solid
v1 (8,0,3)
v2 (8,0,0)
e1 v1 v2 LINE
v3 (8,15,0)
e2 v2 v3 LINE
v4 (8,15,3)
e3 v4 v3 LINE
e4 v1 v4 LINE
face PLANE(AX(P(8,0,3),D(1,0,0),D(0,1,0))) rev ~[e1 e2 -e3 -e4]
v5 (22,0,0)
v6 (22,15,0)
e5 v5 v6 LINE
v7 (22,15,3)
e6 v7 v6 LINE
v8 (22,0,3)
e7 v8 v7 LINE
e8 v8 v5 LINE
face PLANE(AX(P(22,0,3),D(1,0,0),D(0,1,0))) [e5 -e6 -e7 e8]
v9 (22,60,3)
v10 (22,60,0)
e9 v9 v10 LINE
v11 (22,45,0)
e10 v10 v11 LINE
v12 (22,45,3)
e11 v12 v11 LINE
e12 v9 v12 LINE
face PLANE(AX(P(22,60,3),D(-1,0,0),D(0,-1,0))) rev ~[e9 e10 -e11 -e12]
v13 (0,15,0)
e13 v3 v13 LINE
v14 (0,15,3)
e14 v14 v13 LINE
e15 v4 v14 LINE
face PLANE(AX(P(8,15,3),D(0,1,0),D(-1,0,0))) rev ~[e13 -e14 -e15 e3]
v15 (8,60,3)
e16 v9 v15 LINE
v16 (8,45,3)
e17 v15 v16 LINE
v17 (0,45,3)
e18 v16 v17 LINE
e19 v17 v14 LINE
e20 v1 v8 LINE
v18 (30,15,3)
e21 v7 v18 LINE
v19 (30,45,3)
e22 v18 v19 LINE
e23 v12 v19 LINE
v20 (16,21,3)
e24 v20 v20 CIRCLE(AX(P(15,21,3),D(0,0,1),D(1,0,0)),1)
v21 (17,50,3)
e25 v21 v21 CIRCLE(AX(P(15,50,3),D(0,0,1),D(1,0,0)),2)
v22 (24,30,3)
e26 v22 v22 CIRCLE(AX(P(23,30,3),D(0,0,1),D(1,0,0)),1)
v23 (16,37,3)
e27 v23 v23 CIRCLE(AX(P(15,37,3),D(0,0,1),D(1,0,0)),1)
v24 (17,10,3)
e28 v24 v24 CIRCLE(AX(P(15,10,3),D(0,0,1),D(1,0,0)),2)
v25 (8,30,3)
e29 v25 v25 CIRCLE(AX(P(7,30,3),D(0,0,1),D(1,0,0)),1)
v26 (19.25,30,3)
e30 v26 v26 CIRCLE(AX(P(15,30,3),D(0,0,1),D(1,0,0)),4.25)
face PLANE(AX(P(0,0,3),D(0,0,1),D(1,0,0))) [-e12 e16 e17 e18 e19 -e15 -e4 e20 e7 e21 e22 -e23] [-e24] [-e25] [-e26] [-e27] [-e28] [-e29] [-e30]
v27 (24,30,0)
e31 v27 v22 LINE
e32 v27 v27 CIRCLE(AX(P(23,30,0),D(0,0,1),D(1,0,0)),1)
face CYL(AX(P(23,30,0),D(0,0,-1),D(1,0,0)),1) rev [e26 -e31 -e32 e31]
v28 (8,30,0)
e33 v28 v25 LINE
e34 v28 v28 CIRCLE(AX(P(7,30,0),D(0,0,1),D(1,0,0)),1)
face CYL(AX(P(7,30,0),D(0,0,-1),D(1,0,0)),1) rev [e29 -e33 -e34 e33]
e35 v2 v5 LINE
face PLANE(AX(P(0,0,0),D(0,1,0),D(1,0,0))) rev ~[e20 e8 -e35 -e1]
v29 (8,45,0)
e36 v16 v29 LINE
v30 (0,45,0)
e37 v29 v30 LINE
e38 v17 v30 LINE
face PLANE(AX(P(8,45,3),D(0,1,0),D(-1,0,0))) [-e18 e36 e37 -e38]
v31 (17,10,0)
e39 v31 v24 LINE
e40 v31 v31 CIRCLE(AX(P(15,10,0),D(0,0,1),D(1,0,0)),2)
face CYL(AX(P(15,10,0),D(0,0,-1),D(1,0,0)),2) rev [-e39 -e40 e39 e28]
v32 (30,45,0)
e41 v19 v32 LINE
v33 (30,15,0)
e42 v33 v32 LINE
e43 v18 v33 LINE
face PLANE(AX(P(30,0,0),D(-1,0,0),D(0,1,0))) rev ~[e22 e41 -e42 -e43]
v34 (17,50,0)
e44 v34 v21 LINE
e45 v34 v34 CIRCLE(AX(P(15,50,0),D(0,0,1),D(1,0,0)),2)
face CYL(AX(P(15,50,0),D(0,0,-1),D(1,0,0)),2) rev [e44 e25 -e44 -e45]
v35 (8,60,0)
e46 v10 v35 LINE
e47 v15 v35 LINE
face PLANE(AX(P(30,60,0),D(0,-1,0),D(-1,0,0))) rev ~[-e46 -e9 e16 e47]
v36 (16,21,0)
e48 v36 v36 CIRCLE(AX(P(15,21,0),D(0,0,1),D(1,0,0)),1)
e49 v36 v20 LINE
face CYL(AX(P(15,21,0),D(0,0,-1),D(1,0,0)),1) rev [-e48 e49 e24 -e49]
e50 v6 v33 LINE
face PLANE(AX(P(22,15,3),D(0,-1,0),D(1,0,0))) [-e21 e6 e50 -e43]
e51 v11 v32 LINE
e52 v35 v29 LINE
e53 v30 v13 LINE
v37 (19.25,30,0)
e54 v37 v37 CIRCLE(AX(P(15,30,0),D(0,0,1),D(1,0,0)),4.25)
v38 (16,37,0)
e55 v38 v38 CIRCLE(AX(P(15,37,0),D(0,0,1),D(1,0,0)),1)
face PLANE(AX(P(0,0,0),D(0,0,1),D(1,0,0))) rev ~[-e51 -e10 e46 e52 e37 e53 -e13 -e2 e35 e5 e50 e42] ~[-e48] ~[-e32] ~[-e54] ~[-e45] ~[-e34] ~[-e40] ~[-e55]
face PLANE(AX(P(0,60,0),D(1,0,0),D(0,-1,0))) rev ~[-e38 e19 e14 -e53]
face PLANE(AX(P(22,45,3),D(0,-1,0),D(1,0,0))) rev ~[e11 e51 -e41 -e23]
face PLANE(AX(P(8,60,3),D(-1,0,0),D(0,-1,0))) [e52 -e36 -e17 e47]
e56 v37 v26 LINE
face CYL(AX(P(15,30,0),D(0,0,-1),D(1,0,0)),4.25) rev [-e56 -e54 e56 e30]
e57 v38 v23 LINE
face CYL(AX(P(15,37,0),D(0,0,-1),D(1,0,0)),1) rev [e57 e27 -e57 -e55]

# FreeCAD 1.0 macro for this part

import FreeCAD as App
import Part
import Sketcher

V = App.Vector
Q = App.Units.Quantity

doc = App.newDocument("Part")
params = doc.addObject("Spreadsheet::Sheet", "Params")
for row, (alias, value) in enumerate([
    ("sketch1_diameter", "4 mm"),
    ("sketch1_diameter2", "2 mm"),
    ("sketch1_diameter3", "8.5 mm"),
    ("sketch1_width", "30 mm"),
    ("sketch1_height", "60 mm"),
    ("pad1_length", "3 mm"),
    ("sketch2_width", "8 mm"),
    ("sketch2_height", "15 mm"),
    ("pocket1_length", "3 mm"),
], start=1):
    params.set(f"A{row}", alias)
    params.set(f"B{row}", "=" + value)
    params.setAlias(f"B{row}", alias)

body = doc.addObject("PartDesign::Body", "Body")

sketch1 = doc.addObject("Sketcher::SketchObject", "Sketch")
body.addObject(sketch1)
sketch1.AttachmentSupport = (doc.XY_Plane, [""])
sketch1.MapMode = "FlatFace"
sketch1.addGeometry([
    Part.LineSegment(V(0, 60, 0), V(0, 0, 0)),
    Part.LineSegment(V(0, 0, 0), V(30, 0, 0)),
    Part.LineSegment(V(30, 0, 0), V(30, 60, 0)),
    Part.LineSegment(V(30, 60, 0), V(0, 60, 0)),
    Part.Circle(V(15, 10, 0), V(0, 0, 1), 2),
    Part.Circle(V(15, 21, 0), V(0, 0, 1), 1),
    Part.Circle(V(7, 30, 0), V(0, 0, 1), 1),
    Part.Circle(V(15, 30, 0), V(0, 0, 1), 4.2),
    Part.Circle(V(15, 37, 0), V(0, 0, 1), 1),
    Part.Circle(V(23, 30, 0), V(0, 0, 1), 1),
    Part.Circle(V(15, 50, 0), V(0, 0, 1), 2),
], False)
sketch1.addConstraint([
    Sketcher.Constraint("Coincident", 0, 2, 1, 1),
    Sketcher.Constraint("Coincident", 1, 2, 2, 1),
    Sketcher.Constraint("Coincident", 2, 2, 3, 1),
    Sketcher.Constraint("Coincident", 3, 2, 0, 1),
    Sketcher.Constraint("Vertical", 0),
    Sketcher.Constraint("Horizontal", 1),
    Sketcher.Constraint("Vertical", 2),
    Sketcher.Constraint("Horizontal", 3),
    Sketcher.Constraint("Coincident", 0, 2, -1, 1),
    Sketcher.Constraint("Equal", 5, 6),
    Sketcher.Constraint("Equal", 6, 8),
    Sketcher.Constraint("Equal", 8, 9),
    Sketcher.Constraint("Equal", 4, 10),
    Sketcher.Constraint("Horizontal", 6, 3, 7, 3),
    Sketcher.Constraint("Horizontal", 7, 3, 9, 3),
    Sketcher.Constraint("Vertical", 4, 3, 5, 3),
    Sketcher.Constraint("Vertical", 5, 3, 7, 3),
    Sketcher.Constraint("Vertical", 7, 3, 8, 3),
    Sketcher.Constraint("Vertical", 8, 3, 10, 3),
    Sketcher.Constraint("Diameter", 4, Q("4 mm")),
    Sketcher.Constraint("Diameter", 5, Q("2 mm")),
    Sketcher.Constraint("Diameter", 7, Q("8.5 mm")),
    Sketcher.Constraint("DistanceX", 1, 1, 1, 2, Q("30 mm")),
    Sketcher.Constraint("DistanceY", 0, 2, 0, 1, Q("60 mm")),
    Sketcher.Constraint("DistanceX", -1, 1, 6, 3, Q("7 mm")),
    Sketcher.Constraint("DistanceY", -1, 1, 6, 3, Q("30 mm")),
    Sketcher.Constraint("DistanceX", -1, 1, 9, 3, Q("23 mm")),
    Sketcher.Constraint("DistanceY", 4, 3, 6, 3, Q("20 mm")),
    Sketcher.Constraint("DistanceY", 7, 3, 8, 3, Q("7 mm")),
    Sketcher.Constraint("DistanceY", 5, 3, 8, 3, Q("16 mm")),
    Sketcher.Constraint("DistanceY", 7, 3, 10, 3, Q("20 mm")),
    Sketcher.Constraint("DistanceX", -1, 1, 4, 3, Q("15 mm")),
])
sketch1.setExpression("Constraints[19]", "Params.sketch1_diameter")
sketch1.setExpression("Constraints[20]", "Params.sketch1_diameter2")
sketch1.setExpression("Constraints[21]", "Params.sketch1_diameter3")
sketch1.setExpression("Constraints[22]", "Params.sketch1_width")
sketch1.setExpression("Constraints[23]", "Params.sketch1_height")
pad1 = doc.addObject("PartDesign::Pad", "Pad")
body.addObject(pad1)
pad1.Profile = sketch1
pad1.setExpression("Length", "Params.pad1_length")

sketch2 = doc.addObject("Sketcher::SketchObject", "Sketch001")
body.addObject(sketch2)
sketch2.AttachmentSupport = (doc.XY_Plane, [""])
sketch2.MapMode = "FlatFace"
sketch2.AttachmentOffset = App.Placement(V(0, 0, 3), App.Rotation())
sketch2.addGeometry([
    Part.LineSegment(V(30, 45, 0), V(30, 60, 0)),
    Part.LineSegment(V(30, 60, 0), V(22, 60, 0)),
    Part.LineSegment(V(22, 60, 0), V(22, 45, 0)),
    Part.LineSegment(V(22, 45, 0), V(30, 45, 0)),
    Part.LineSegment(V(8, 45, 0), V(8, 60, 0)),
    Part.LineSegment(V(8, 60, 0), V(0, 60, 0)),
    Part.LineSegment(V(0, 60, 0), V(0, 45, 0)),
    Part.LineSegment(V(0, 45, 0), V(8, 45, 0)),
    Part.LineSegment(V(0, 15, 0), V(0, 0, 0)),
    Part.LineSegment(V(0, 0, 0), V(8, 0, 0)),
    Part.LineSegment(V(8, 0, 0), V(8, 15, 0)),
    Part.LineSegment(V(8, 15, 0), V(0, 15, 0)),
    Part.LineSegment(V(22, 15, 0), V(22, 0, 0)),
    Part.LineSegment(V(22, 0, 0), V(30, 0, 0)),
    Part.LineSegment(V(30, 0, 0), V(30, 15, 0)),
    Part.LineSegment(V(30, 15, 0), V(22, 15, 0)),
], False)
sketch2.addConstraint([
    Sketcher.Constraint("Coincident", 0, 2, 1, 1),
    Sketcher.Constraint("Coincident", 1, 2, 2, 1),
    Sketcher.Constraint("Coincident", 2, 2, 3, 1),
    Sketcher.Constraint("Coincident", 3, 2, 0, 1),
    Sketcher.Constraint("Coincident", 4, 2, 5, 1),
    Sketcher.Constraint("Coincident", 5, 2, 6, 1),
    Sketcher.Constraint("Coincident", 6, 2, 7, 1),
    Sketcher.Constraint("Coincident", 7, 2, 4, 1),
    Sketcher.Constraint("Coincident", 8, 2, 9, 1),
    Sketcher.Constraint("Coincident", 9, 2, 10, 1),
    Sketcher.Constraint("Coincident", 10, 2, 11, 1),
    Sketcher.Constraint("Coincident", 11, 2, 8, 1),
    Sketcher.Constraint("Coincident", 12, 2, 13, 1),
    Sketcher.Constraint("Coincident", 13, 2, 14, 1),
    Sketcher.Constraint("Coincident", 14, 2, 15, 1),
    Sketcher.Constraint("Coincident", 15, 2, 12, 1),
    Sketcher.Constraint("Vertical", 0),
    Sketcher.Constraint("Horizontal", 1),
    Sketcher.Constraint("Vertical", 2),
    Sketcher.Constraint("Horizontal", 3),
    Sketcher.Constraint("Vertical", 4),
    Sketcher.Constraint("Horizontal", 5),
    Sketcher.Constraint("Vertical", 6),
    Sketcher.Constraint("Horizontal", 7),
    Sketcher.Constraint("Vertical", 8),
    Sketcher.Constraint("Horizontal", 9),
    Sketcher.Constraint("Vertical", 10),
    Sketcher.Constraint("Horizontal", 11),
    Sketcher.Constraint("Vertical", 12),
    Sketcher.Constraint("Horizontal", 13),
    Sketcher.Constraint("Vertical", 14),
    Sketcher.Constraint("Horizontal", 15),
    Sketcher.Constraint("Coincident", 8, 2, -1, 1),
    Sketcher.Constraint("PointOnObject", 5, 2, -2),
    Sketcher.Constraint("PointOnObject", 12, 2, -1),
    Sketcher.Constraint("Horizontal", 1, 2, 4, 2),
    Sketcher.Constraint("Horizontal", 3, 2, 6, 2),
    Sketcher.Constraint("Horizontal", 11, 2, 14, 2),
    Sketcher.Constraint("Vertical", 7, 2, 9, 2),
    Sketcher.Constraint("Vertical", 2, 2, 12, 2),
    Sketcher.Constraint("Vertical", 3, 2, 13, 2),
    Sketcher.Constraint("Equal", 3, 5),
    Sketcher.Constraint("Equal", 6, 8),
    Sketcher.Constraint("DistanceX", 1, 2, 1, 1, Q("8 mm")),
    Sketcher.Constraint("DistanceY", 0, 1, 0, 2, Q("15 mm")),
    Sketcher.Constraint("DistanceX", -1, 1, 0, 2, Q("30 mm")),
    Sketcher.Constraint("DistanceY", -1, 1, 0, 2, Q("60 mm")),
])
sketch2.setExpression("Constraints[43]", "Params.sketch2_width")
sketch2.setExpression("Constraints[44]", "Params.sketch2_height")
pocket1 = doc.addObject("PartDesign::Pocket", "Pocket")
body.addObject(pocket1)
pocket1.Profile = sketch2
pocket1.setExpression("Length", "Params.pocket1_length")

doc.recompute()
